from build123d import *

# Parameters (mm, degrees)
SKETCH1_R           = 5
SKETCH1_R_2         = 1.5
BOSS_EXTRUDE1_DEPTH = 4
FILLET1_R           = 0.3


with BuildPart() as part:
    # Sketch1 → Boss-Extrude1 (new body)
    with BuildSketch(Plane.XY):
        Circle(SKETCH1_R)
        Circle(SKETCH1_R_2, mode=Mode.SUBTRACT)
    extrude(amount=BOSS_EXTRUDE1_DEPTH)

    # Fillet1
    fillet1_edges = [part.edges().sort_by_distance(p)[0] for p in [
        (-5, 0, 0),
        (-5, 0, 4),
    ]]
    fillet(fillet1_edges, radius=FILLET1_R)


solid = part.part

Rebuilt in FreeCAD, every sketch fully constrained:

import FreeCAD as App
import Part
import Sketcher

V = App.Vector
Q = App.Units.Quantity


def edges_at(feature, points):
    """Names of the edges that pass closest to the given points."""
    edges = feature.Shape.Edges
    near = lambda p: min(range(len(edges)), key=lambda i: edges[i].distToShape(Part.Vertex(*p))[0])
    return sorted({f"Edge{near(p) + 1}" for p in points})

doc = App.newDocument("Part")
params = doc.addObject("Spreadsheet::Sheet", "Params")
for row, (alias, value) in enumerate([
    ("sketch1_diameter", "10 mm"),
    ("sketch1_diameter2", "3 mm"),
    ("pad1_length", "4 mm"),
    ("fillet_radius", "0.3 mm"),
], start=1):
    params.set(f"A{row}", alias)
    params.set(f"B{row}", "=" + value)
    params.setAlias(f"B{row}", alias)

body = doc.addObject("PartDesign::Body", "Body")

# Sketch on XY plane
sketch1 = doc.addObject("Sketcher::SketchObject", "Sketch")
body.addObject(sketch1)
sketch1.AttachmentSupport = (doc.XY_Plane, [""])
sketch1.MapMode = "FlatFace"
sketch1.addGeometry([
    Part.Circle(V(0, 0, 0), V(0, 0, 1), 5),
    Part.Circle(V(0, 0, 0), V(0, 0, 1), 1.5),
], False)
sketch1.addConstraint([
    Sketcher.Constraint("Coincident", 0, 3, -1, 1),
    Sketcher.Constraint("Coincident", 1, 3, -1, 1),
    Sketcher.Constraint("Diameter", 0, Q("10 mm")),
    Sketcher.Constraint("Diameter", 1, Q("3 mm")),
])
sketch1.setExpression("Constraints[2]", "Params.sketch1_diameter")
sketch1.setExpression("Constraints[3]", "Params.sketch1_diameter2")
pad1 = doc.addObject("PartDesign::Pad", "Pad")
body.addObject(pad1)
pad1.Profile = sketch1
pad1.setExpression("Length", "Params.pad1_length")
doc.recompute()

fillet = doc.addObject("PartDesign::Fillet", "Fillet")
body.addObject(fillet)
fillet.Base = (pad1, edges_at(pad1, [(-5, 0, 0), (-5, 0, 4)]))
fillet.setExpression("Radius", "Params.fillet_radius")

doc.recompute()
